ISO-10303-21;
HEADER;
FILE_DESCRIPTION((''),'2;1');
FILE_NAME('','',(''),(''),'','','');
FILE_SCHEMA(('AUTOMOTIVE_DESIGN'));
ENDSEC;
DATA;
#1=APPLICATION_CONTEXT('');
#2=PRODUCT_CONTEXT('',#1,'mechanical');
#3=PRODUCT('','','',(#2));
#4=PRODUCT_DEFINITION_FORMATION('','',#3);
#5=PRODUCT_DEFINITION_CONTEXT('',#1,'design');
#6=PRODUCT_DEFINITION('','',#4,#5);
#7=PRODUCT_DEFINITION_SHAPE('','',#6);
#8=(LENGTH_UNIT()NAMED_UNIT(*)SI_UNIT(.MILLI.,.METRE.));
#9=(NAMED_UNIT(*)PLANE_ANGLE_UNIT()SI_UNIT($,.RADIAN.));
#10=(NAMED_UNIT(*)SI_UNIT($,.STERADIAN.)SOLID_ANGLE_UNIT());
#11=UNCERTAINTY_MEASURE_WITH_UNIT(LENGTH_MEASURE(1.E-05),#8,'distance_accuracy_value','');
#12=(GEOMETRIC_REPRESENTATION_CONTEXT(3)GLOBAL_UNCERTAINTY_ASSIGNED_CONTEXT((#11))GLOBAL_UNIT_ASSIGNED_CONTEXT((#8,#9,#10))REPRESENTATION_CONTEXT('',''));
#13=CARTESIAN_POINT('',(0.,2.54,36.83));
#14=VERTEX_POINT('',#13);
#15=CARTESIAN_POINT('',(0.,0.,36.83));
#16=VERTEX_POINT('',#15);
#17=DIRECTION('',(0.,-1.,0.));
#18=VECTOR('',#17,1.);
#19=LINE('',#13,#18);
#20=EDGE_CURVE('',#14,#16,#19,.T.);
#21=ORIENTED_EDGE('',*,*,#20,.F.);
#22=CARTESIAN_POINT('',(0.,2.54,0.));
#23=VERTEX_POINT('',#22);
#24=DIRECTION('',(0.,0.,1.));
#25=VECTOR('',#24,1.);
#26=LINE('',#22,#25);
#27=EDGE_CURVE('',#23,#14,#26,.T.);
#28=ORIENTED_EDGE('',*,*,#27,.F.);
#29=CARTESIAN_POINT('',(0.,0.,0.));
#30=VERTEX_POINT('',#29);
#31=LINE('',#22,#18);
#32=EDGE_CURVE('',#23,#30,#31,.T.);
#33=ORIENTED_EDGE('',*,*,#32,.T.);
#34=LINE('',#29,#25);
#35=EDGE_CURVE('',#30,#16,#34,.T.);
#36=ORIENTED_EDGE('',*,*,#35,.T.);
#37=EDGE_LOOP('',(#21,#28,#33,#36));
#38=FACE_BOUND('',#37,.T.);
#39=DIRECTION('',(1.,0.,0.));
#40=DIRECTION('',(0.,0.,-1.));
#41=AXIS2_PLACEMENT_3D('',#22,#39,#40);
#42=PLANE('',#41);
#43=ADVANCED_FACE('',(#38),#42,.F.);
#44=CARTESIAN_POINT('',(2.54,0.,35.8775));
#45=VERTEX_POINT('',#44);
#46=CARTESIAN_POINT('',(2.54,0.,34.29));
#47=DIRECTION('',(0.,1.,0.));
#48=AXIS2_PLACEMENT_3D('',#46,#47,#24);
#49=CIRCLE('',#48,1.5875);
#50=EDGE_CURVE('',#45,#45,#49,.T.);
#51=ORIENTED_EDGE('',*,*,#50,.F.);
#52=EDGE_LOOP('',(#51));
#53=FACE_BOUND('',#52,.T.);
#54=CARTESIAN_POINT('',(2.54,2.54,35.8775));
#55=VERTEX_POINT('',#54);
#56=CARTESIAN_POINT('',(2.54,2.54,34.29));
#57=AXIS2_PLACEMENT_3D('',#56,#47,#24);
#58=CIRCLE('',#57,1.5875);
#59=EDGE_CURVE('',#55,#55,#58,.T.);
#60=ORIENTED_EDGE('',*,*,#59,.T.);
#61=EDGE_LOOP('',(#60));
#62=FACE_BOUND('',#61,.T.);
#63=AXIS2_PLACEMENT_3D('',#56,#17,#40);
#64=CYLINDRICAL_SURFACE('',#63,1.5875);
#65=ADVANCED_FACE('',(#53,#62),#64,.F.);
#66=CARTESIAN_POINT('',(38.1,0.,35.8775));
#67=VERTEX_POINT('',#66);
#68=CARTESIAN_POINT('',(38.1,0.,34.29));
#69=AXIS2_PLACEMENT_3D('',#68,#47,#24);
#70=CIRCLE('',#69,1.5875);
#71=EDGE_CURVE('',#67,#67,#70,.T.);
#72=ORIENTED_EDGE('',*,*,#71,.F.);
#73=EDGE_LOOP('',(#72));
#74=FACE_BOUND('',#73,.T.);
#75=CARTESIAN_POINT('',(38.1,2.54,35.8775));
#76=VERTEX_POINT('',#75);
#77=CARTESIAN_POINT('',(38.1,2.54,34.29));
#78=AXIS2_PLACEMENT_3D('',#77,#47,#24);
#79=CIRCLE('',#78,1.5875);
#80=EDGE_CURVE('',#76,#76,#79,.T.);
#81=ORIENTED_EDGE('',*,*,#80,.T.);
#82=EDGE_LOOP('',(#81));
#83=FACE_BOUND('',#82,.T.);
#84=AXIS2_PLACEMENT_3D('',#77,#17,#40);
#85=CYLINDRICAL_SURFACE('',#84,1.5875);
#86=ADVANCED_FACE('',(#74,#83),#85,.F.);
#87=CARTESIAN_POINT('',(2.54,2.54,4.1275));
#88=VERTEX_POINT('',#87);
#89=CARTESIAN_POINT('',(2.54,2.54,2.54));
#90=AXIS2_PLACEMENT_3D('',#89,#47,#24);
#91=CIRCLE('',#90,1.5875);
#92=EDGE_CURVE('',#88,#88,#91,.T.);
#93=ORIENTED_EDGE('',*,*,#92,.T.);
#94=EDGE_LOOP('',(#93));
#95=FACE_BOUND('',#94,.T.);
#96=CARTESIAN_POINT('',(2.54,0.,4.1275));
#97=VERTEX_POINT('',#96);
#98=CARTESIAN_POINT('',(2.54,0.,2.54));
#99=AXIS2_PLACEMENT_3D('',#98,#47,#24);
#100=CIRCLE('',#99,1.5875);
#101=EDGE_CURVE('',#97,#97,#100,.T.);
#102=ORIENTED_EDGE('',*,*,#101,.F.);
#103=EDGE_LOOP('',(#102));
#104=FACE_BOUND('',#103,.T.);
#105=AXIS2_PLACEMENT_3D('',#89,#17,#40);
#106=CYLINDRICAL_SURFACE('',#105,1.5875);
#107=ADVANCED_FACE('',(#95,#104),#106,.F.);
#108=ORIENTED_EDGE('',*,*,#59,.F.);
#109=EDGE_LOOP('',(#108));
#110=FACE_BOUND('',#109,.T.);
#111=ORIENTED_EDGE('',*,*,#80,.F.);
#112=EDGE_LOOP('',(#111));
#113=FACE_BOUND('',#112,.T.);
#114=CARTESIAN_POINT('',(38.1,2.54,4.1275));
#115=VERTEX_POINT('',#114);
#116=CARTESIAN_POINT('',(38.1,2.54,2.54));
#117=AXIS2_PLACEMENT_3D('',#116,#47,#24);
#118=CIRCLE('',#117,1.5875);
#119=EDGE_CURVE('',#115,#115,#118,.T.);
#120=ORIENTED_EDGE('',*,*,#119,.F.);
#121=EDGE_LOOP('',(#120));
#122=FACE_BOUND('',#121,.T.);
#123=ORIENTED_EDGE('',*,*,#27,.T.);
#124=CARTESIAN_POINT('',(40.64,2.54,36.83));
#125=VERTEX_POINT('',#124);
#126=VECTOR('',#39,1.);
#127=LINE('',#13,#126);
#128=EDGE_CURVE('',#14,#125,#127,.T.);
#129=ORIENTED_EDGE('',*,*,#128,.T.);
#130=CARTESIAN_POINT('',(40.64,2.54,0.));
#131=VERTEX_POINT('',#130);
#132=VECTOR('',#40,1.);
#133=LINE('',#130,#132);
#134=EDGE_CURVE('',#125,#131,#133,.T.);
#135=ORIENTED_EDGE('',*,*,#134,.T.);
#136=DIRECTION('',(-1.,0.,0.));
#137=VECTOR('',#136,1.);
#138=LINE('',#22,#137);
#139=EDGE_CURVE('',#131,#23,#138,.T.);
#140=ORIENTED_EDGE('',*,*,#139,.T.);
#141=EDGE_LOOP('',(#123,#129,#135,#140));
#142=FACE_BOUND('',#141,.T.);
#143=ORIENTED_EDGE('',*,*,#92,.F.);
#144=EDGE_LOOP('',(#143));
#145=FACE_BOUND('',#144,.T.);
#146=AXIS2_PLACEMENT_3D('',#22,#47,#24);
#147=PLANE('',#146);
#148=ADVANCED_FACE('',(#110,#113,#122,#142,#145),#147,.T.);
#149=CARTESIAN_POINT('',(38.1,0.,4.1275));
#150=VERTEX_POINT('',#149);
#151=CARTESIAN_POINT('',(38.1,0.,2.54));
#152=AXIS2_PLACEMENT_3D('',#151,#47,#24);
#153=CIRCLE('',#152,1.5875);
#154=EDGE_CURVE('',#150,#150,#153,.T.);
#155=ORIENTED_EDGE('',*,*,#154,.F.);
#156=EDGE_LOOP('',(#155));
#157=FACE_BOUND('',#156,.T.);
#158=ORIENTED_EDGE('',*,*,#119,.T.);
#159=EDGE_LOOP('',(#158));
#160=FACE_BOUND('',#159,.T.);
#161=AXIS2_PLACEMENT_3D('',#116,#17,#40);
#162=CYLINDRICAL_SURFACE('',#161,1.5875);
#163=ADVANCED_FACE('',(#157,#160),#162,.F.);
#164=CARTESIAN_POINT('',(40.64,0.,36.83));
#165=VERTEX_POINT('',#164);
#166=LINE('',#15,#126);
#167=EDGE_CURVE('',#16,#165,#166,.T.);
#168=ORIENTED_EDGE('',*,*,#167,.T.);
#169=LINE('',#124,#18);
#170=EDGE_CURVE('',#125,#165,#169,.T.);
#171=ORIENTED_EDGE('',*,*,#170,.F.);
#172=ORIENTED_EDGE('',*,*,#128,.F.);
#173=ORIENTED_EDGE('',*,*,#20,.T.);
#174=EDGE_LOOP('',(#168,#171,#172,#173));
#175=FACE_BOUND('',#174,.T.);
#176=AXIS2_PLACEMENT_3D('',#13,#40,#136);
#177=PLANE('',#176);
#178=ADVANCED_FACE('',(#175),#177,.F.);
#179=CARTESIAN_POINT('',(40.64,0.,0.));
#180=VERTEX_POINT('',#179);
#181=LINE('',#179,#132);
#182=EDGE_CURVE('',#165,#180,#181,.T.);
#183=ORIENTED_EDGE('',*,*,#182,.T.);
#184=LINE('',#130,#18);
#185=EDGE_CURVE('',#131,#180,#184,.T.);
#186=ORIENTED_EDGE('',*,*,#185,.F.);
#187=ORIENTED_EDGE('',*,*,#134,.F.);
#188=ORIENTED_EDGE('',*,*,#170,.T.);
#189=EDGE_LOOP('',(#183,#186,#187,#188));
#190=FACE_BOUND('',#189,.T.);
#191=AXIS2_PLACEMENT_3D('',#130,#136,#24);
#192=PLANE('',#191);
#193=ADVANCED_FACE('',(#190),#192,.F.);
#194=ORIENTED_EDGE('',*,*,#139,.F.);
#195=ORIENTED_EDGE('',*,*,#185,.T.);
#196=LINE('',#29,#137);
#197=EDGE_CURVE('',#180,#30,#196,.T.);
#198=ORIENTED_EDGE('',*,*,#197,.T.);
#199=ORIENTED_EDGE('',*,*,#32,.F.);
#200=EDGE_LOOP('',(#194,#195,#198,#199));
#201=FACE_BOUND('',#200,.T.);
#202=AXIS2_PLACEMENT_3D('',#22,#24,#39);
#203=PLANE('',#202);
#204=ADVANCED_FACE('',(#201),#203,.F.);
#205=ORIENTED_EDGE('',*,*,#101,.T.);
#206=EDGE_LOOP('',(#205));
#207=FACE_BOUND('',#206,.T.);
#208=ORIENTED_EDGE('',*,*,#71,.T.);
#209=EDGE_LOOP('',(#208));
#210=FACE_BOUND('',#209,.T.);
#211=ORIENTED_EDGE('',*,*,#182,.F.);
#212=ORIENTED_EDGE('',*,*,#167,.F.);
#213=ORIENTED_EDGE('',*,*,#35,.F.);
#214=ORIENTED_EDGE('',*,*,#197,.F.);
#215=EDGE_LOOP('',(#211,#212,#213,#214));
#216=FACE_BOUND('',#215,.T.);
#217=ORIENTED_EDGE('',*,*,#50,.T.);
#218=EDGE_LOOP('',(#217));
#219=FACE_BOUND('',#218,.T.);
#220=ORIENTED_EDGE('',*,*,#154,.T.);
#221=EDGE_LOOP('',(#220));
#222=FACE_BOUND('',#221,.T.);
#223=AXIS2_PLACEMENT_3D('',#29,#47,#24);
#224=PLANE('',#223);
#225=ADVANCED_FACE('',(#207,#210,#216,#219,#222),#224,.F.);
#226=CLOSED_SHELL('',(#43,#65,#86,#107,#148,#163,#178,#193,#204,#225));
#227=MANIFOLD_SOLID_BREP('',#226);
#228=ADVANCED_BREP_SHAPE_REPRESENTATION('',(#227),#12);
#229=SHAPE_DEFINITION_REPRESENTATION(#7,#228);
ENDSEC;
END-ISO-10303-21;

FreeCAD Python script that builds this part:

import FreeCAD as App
import Part
import Sketcher
Q = App.Units.Quantity


def add_polygon(sketch, points):
    """Adds a closed chain of lines whose ends are joined by coincident constraints."""
    first, n = sketch.GeometryCount, len(points)
    for a, b in zip(points, points[1:] + points[:1]):
        sketch.addGeometry(Part.LineSegment(App.Vector(*a, 0), App.Vector(*b, 0)), False)
    for i in range(n):
        sketch.addConstraint(Sketcher.Constraint("Coincident", first + i, 2, first + (i + 1) % n, 1))

doc = App.newDocument("Part")
body = doc.addObject("PartDesign::Body", "Body")

# Sketch on XZ plane
sketch1 = doc.addObject("Sketcher::SketchObject", "Sketch")
body.addObject(sketch1)
sketch1.AttachmentSupport = (doc.XZ_Plane, [""])
sketch1.MapMode = "FlatFace"
add_polygon(sketch1, [(0, 0), (0, 36.8), (40.6, 36.8), (40.6, 0)])  # lines 0-3
sketch1.addGeometry(Part.Circle(App.Vector(2.5, 34.3, 0), App.Vector(0, 0, 1), 1.6), False)  # 4
sketch1.addGeometry(Part.Circle(App.Vector(38.1, 34.3, 0), App.Vector(0, 0, 1), 1.6), False)  # 5
sketch1.addGeometry(Part.Circle(App.Vector(2.5, 2.5, 0), App.Vector(0, 0, 1), 1.6), False)  # 6
sketch1.addGeometry(Part.Circle(App.Vector(38.1, 2.5, 0), App.Vector(0, 0, 1), 1.6), False)  # 7
sketch1.addConstraint(Sketcher.Constraint("Vertical", 0))
sketch1.addConstraint(Sketcher.Constraint("Horizontal", 1))
sketch1.addConstraint(Sketcher.Constraint("Vertical", 2))
sketch1.addConstraint(Sketcher.Constraint("Horizontal", 3))
sketch1.addConstraint(Sketcher.Constraint("Coincident", 3, 2, -1, 1))
sketch1.addConstraint(Sketcher.Constraint("Equal", 4, 5))
sketch1.addConstraint(Sketcher.Constraint("Equal", 5, 6))
sketch1.addConstraint(Sketcher.Constraint("Equal", 6, 7))
sketch1.addConstraint(Sketcher.Constraint("Horizontal", 4, 3, 5, 3))
sketch1.addConstraint(Sketcher.Constraint("Horizontal", 6, 3, 7, 3))
sketch1.addConstraint(Sketcher.Constraint("Vertical", 4, 3, 6, 3))
sketch1.addConstraint(Sketcher.Constraint("Vertical", 5, 3, 7, 3))
sketch1.addConstraint(Sketcher.Constraint("Diameter", 4, Q("0.125 in")))
sketch1.addConstraint(Sketcher.Constraint("DistanceX", 1, 1, 1, 2, Q("1.6 in")))
sketch1.addConstraint(Sketcher.Constraint("DistanceY", 0, 1, 0, 2, Q("1.45 in")))
sketch1.addConstraint(Sketcher.Constraint("DistanceX", -1, 1, 4, 3, Q("0.1 in")))
sketch1.addConstraint(Sketcher.Constraint("DistanceX", -1, 1, 5, 3, Q("1.5 in")))
sketch1.addConstraint(Sketcher.Constraint("DistanceY", -1, 1, 6, 3, Q("0.1 in")))
sketch1.addConstraint(Sketcher.Constraint("DistanceY", 4, 3, 0, 2, Q("0.1 in")))
pad1 = doc.addObject("PartDesign::Pad", "Pad")
body.addObject(pad1)
pad1.Profile = sketch1
pad1.Length = Q("0.1 in")
pad1.Reversed = True

doc.recompute()
